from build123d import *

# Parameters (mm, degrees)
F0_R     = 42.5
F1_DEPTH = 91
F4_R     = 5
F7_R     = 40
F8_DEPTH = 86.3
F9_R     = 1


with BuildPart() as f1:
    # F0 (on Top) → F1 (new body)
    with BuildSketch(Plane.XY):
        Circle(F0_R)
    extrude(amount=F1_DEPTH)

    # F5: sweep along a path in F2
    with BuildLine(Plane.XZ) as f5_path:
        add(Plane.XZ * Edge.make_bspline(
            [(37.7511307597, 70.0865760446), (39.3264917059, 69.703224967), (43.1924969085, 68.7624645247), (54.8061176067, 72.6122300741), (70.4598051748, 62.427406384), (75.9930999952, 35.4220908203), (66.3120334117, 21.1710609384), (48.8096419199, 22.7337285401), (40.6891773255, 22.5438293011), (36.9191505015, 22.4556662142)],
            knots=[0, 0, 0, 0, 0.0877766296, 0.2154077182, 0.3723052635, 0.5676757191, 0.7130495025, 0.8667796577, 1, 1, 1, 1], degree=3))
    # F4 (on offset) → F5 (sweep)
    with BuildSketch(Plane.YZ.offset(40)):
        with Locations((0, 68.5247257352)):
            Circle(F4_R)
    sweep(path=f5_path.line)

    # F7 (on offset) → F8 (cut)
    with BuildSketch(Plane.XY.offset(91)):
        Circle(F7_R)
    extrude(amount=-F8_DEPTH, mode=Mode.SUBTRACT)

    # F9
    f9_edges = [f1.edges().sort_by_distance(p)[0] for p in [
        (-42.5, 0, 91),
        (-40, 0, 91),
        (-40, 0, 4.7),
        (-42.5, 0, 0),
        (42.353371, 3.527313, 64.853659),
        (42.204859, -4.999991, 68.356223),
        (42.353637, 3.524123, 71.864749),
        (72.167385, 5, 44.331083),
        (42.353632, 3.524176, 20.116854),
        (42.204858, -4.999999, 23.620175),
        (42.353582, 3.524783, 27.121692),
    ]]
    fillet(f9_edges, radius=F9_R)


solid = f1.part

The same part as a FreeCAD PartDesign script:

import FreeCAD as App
import Part
import Sketcher
from FreeCAD import Vector

doc = App.newDocument("Part")
body = doc.addObject("PartDesign::Body", "Body")

# Sketch on XY plane
sketch1 = body.newObject("Sketcher::SketchObject", "Sketch")
sketch1.AttachmentSupport = (doc.getObject("XY_Plane"), [""])
sketch1.MapMode = "FlatFace"
sketch1.addGeometry(Part.Circle(Vector(0, 0, 0), Vector(0, 0, 1), 42), False)
sketch1.addConstraint([
    Sketcher.Constraint("Coincident", 0, 3, -1, 1),
    Sketcher.Constraint("Diameter", 0, 85.0),
])
pad1 = body.newObject("PartDesign::Pad", "Pad")
pad1.Profile = sketch1
pad1.Length = 91

# Sketch on YZ plane
sketch2 = body.newObject("Sketcher::SketchObject", "Sketch001")
sketch2.AttachmentSupport = (doc.getObject("YZ_Plane"), [""])
sketch2.MapMode = "FlatFace"
sketch2.AttachmentOffset = App.Placement(Vector(0, 0, 40), App.Rotation())
sketch2.addGeometry(Part.Circle(Vector(0, 69, 0), Vector(0, 0, 1), 5), False)
sketch2.addConstraint([
    Sketcher.Constraint("PointOnObject", 0, 3, -2),
    Sketcher.Constraint("Diameter", 0, 10.0),
    Sketcher.Constraint("DistanceY", -1, 1, 0, 3, 68.524726),
])

# Sketch on XZ plane
sketch3 = body.newObject("Sketcher::SketchObject", "Sketch002")
sketch3.AttachmentSupport = (doc.getObject("XZ_Plane"), [""])
sketch3.MapMode = "FlatFace"
sketch3.addGeometry(Part.BSplineCurve([Vector(37.751131, 70.086576, 0), Vector(39.326492, 69.703225, 0), Vector(43.192497, 68.762465, 0), Vector(54.806118, 72.61223, 0), Vector(70.459805, 62.427406, 0), Vector(75.9931, 35.422091, 0), Vector(66.312033, 21.171061, 0), Vector(48.809642, 22.733729, 0), Vector(40.689177, 22.543829, 0), Vector(36.919151, 22.455666, 0)], [4, 1, 1, 1, 1, 1, 1, 4], [0, 0.08777663, 0.215407718, 0.372305263, 0.567675719, 0.713049502, 0.866779658, 1], False, 3, [1, 1, 1, 1, 1, 1, 1, 1, 1, 1], False), False)
sketch3.addConstraint(Sketcher.Constraint("Block", 0))
doc.recompute()

additivepipe = body.newObject("PartDesign::AdditivePipe", "AdditivePipe")
additivepipe.Profile = sketch2
additivepipe.Spine = (sketch3, ["Edge1"])

# Sketch on XY plane
sketch4 = body.newObject("Sketcher::SketchObject", "Sketch003")
sketch4.AttachmentSupport = (doc.getObject("XY_Plane"), [""])
sketch4.MapMode = "FlatFace"
sketch4.AttachmentOffset = App.Placement(Vector(0, 0, 91), App.Rotation())
sketch4.addGeometry(Part.Circle(Vector(0, 0, 0), Vector(0, 0, 1), 40), False)
sketch4.addConstraint([
    Sketcher.Constraint("Coincident", 0, 3, -1, 1),
    Sketcher.Constraint("Diameter", 0, 80.0),
])
pocket1 = body.newObject("PartDesign::Pocket", "Pocket")
pocket1.Profile = sketch4
pocket1.Length = 86.3
doc.recompute()

fillet = body.newObject("PartDesign::Fillet", "Fillet")
fillet.Base = (pocket1, ["Edge1"])
fillet.UseAllEdges = True
fillet.Radius = 1

doc.recompute()
